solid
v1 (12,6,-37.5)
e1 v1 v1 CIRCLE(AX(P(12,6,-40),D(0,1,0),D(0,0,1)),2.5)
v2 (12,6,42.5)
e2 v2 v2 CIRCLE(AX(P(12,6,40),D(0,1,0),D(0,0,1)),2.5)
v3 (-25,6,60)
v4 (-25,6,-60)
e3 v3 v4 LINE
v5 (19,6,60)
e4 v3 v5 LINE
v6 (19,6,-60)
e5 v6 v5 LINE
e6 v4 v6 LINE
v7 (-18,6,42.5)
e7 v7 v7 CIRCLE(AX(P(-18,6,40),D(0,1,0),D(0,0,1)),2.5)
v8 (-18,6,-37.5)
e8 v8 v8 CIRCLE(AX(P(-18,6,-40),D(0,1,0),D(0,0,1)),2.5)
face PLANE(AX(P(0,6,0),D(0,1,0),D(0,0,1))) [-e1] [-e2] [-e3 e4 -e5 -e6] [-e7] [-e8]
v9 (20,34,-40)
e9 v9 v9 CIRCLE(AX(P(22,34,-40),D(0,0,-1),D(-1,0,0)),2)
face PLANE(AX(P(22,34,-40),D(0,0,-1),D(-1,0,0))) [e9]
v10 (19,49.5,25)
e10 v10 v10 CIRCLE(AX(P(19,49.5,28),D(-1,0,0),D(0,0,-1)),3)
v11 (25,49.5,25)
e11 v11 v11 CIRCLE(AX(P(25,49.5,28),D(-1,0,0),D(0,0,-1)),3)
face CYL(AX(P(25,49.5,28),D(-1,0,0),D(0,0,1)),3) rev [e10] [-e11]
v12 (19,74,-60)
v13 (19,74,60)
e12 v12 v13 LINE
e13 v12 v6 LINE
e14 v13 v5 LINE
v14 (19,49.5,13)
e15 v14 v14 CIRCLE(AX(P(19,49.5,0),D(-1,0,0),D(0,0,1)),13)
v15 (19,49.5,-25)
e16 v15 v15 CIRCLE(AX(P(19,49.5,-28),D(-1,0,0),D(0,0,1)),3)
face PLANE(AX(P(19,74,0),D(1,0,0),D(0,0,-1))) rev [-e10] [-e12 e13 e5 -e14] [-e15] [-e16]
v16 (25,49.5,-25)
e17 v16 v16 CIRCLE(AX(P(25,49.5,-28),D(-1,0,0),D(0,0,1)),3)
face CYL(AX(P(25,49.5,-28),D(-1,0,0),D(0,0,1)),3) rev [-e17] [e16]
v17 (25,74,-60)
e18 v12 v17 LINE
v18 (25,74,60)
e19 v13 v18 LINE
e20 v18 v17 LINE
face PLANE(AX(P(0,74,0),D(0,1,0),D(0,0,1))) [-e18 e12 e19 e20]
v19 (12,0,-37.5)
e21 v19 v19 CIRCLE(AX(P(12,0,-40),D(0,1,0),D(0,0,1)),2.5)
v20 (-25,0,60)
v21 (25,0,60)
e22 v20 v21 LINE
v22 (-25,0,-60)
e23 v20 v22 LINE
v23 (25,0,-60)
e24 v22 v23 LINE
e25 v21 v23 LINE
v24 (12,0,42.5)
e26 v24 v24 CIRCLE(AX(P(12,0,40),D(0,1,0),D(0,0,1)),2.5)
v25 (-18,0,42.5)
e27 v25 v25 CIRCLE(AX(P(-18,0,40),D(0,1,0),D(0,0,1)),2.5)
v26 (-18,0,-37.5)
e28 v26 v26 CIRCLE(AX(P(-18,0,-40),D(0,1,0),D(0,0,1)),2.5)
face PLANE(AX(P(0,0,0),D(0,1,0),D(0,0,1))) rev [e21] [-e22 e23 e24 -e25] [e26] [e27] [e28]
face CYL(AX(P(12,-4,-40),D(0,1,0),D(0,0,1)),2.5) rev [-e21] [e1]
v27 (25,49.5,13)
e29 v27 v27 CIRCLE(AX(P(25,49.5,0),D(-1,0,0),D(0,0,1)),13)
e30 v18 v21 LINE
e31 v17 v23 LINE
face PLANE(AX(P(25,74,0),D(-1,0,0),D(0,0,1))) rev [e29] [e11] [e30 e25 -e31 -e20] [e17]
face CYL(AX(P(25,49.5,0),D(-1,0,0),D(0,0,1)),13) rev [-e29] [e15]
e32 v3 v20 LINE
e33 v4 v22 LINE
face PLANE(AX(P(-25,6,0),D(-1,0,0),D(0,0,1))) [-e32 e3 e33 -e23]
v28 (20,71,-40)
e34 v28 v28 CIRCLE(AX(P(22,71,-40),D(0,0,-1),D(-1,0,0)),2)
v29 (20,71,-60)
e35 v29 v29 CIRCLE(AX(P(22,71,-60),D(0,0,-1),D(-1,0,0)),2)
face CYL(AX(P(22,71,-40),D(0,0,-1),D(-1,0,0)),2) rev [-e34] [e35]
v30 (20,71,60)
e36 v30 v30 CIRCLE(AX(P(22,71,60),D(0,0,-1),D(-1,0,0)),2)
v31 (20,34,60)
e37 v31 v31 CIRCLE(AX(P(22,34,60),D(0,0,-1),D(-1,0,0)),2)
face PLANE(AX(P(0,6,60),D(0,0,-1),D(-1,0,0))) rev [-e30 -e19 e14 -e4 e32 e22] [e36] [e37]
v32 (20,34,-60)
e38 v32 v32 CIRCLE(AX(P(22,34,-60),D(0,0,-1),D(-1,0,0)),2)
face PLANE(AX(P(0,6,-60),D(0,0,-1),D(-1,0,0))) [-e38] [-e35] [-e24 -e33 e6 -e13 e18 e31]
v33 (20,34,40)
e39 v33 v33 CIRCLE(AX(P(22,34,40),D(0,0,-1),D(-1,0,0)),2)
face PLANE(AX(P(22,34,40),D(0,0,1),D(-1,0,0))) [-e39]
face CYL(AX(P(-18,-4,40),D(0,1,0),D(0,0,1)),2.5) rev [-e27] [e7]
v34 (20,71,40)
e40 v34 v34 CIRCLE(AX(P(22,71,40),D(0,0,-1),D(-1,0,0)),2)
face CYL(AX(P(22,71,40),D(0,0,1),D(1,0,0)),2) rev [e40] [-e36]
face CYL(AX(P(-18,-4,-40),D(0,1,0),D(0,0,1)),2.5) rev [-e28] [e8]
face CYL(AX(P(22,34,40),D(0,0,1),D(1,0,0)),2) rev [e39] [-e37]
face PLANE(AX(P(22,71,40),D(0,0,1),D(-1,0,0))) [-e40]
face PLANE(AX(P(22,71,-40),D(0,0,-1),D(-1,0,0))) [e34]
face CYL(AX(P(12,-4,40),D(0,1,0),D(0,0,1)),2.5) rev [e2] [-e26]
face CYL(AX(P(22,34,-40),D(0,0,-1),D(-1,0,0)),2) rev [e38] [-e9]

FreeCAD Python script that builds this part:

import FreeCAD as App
import Part
import Sketcher
from FreeCAD import Vector

doc = App.newDocument("Part")
params = doc.addObject("Spreadsheet::Sheet", "Params")
for row, (alias, value) in enumerate([
    ("sketch1_width", "44 mm"),
    ("sketch1_height", "120 mm"),
    ("pad1_length", "6 mm"),
    ("sketch2_width", "6 mm"),
    ("sketch2_height", "120 mm"),
    ("pad2_length", "74 mm"),
    ("sketch3_diameter", "26 mm"),
    ("sketch3_diameter2", "6 mm"),
    ("sketch4_diameter", "5 mm"),
    ("pocket2_length", "10 mm"),
    ("sketch5_diameter", "4 mm"),
    ("pocket3_length", "20 mm"),
], start=1):
    params.set(f"A{row}", alias)
    params.set(f"B{row}", "=" + value)
    params.setAlias(f"B{row}", alias)

body = doc.addObject("PartDesign::Body", "Body")

sketch1 = doc.addObject("Sketcher::SketchObject", "Sketch")
body.addObject(sketch1)
sketch1.AttachmentSupport = (doc.XZ_Plane, [""])
sketch1.MapMode = "FlatFace"
sketch1.addGeometry([
    Part.LineSegment(Vector(-25, -60, 0), Vector(-25, 60, 0)),
    Part.LineSegment(Vector(-25, 60, 0), Vector(19, 60, 0)),
    Part.LineSegment(Vector(19, 60, 0), Vector(19, -60, 0)),
    Part.LineSegment(Vector(19, -60, 0), Vector(-25, -60, 0)),
], False)
sketch1.addConstraint([
    Sketcher.Constraint("Coincident", 0, 2, 1, 1),
    Sketcher.Constraint("Coincident", 1, 2, 2, 1),
    Sketcher.Constraint("Coincident", 2, 2, 3, 1),
    Sketcher.Constraint("Coincident", 3, 2, 0, 1),
    Sketcher.Constraint("Vertical", 0),
    Sketcher.Constraint("Horizontal", 1),
    Sketcher.Constraint("Vertical", 2),
    Sketcher.Constraint("Horizontal", 3),
    Sketcher.Constraint("DistanceX", 1, 1, 1, 2, 44.0),
    Sketcher.Constraint("DistanceY", 0, 1, 0, 2, 120.0),
    Sketcher.Constraint("DistanceX", 0, 2, -1, 1, 25.0),
    Sketcher.Constraint("DistanceY", -1, 1, 0, 2, 60.0),
])
sketch1.setExpression("Constraints[8]", "Params.sketch1_width")
sketch1.setExpression("Constraints[9]", "Params.sketch1_height")
pad1 = doc.addObject("PartDesign::Pad", "Pad")
body.addObject(pad1)
pad1.Profile = sketch1
pad1.setExpression("Length", "Params.pad1_length")
pad1.Reversed = True

sketch2 = doc.addObject("Sketcher::SketchObject", "Sketch001")
body.addObject(sketch2)
sketch2.AttachmentSupport = (doc.XZ_Plane, [""])
sketch2.MapMode = "FlatFace"
sketch2.addGeometry([
    Part.LineSegment(Vector(19, -60, 0), Vector(19, 60, 0)),
    Part.LineSegment(Vector(19, 60, 0), Vector(25, 60, 0)),
    Part.LineSegment(Vector(25, 60, 0), Vector(25, -60, 0)),
    Part.LineSegment(Vector(25, -60, 0), Vector(19, -60, 0)),
], False)
sketch2.addConstraint([
    Sketcher.Constraint("Coincident", 0, 2, 1, 1),
    Sketcher.Constraint("Coincident", 1, 2, 2, 1),
    Sketcher.Constraint("Coincident", 2, 2, 3, 1),
    Sketcher.Constraint("Coincident", 3, 2, 0, 1),
    Sketcher.Constraint("Vertical", 0),
    Sketcher.Constraint("Horizontal", 1),
    Sketcher.Constraint("Vertical", 2),
    Sketcher.Constraint("Horizontal", 3),
    Sketcher.Constraint("DistanceX", 1, 1, 1, 2, 6.0),
    Sketcher.Constraint("DistanceY", 0, 1, 0, 2, 120.0),
    Sketcher.Constraint("DistanceX", -1, 1, 0, 2, 19.0),
    Sketcher.Constraint("DistanceY", -1, 1, 0, 2, 60.0),
])
sketch2.setExpression("Constraints[8]", "Params.sketch2_width")
sketch2.setExpression("Constraints[9]", "Params.sketch2_height")
pad2 = doc.addObject("PartDesign::Pad", "Pad001")
body.addObject(pad2)
pad2.Profile = sketch2
pad2.setExpression("Length", "Params.pad2_length")
pad2.Reversed = True

sketch3 = doc.addObject("Sketcher::SketchObject", "Sketch002")
body.addObject(sketch3)
sketch3.AttachmentSupport = (doc.YZ_Plane, [""])
sketch3.MapMode = "FlatFace"
sketch3.AttachmentOffset = App.Placement(Vector(0, 0, 19), App.Rotation())
sketch3.addGeometry([
    Part.Circle(Vector(49.5, 0, 0), Vector(0, 0, 1), 13),
    Part.Circle(Vector(49.5, -28, 0), Vector(0, 0, 1), 3),
    Part.Circle(Vector(49.5, 28, 0), Vector(0, 0, 1), 3),
], False)
sketch3.addConstraint([
    Sketcher.Constraint("Equal", 1, 2),
    Sketcher.Constraint("Symmetric", 1, 3, 2, 3, -1),
    Sketcher.Constraint("PointOnObject", 0, 3, -1),
    Sketcher.Constraint("Vertical", 0, 3, 1, 3),
    Sketcher.Constraint("Diameter", 0, 26.0),
    Sketcher.Constraint("Diameter", 1, 6.0),
    Sketcher.Constraint("DistanceY", 1, 3, -1, 1, 28.0),
    Sketcher.Constraint("DistanceX", -1, 1, 0, 3, 49.5),
])
sketch3.setExpression("Constraints[4]", "Params.sketch3_diameter")
sketch3.setExpression("Constraints[5]", "Params.sketch3_diameter2")
pocket1 = doc.addObject("PartDesign::Pocket", "Pocket")
body.addObject(pocket1)
pocket1.Profile = sketch3
pocket1.Type = "ThroughAll"
pocket1.Reversed = True

sketch4 = doc.addObject("Sketcher::SketchObject", "Sketch003")
body.addObject(sketch4)
sketch4.AttachmentSupport = (doc.XZ_Plane, [""])
sketch4.MapMode = "FlatFace"
sketch4.AttachmentOffset = App.Placement(Vector(0, 0, -6), App.Rotation())
sketch4.addGeometry([
    Part.Circle(Vector(-18, -40, 0), Vector(0, 0, 1), 2.5),
    Part.Circle(Vector(12, -40, 0), Vector(0, 0, 1), 2.5),
    Part.Circle(Vector(-18, 40, 0), Vector(0, 0, 1), 2.5),
    Part.Circle(Vector(12, 40, 0), Vector(0, 0, 1), 2.5),
], False)
sketch4.addConstraint([
    Sketcher.Constraint("Equal", 0, 1),
    Sketcher.Constraint("Equal", 1, 2),
    Sketcher.Constraint("Equal", 2, 3),
    Sketcher.Constraint("Symmetric", 0, 3, 2, 3, -1),
    Sketcher.Constraint("Symmetric", 1, 3, 3, 3, -1),
    Sketcher.Constraint("Horizontal", 0, 3, 1, 3),
    Sketcher.Constraint("Diameter", 0, 5.0),
    Sketcher.Constraint("DistanceX", 0, 3, -1, 1, 18.0),
    Sketcher.Constraint("DistanceY", 0, 3, -1, 1, 40.0),
    Sketcher.Constraint("DistanceX", -1, 1, 1, 3, 12.0),
])
sketch4.setExpression("Constraints[6]", "Params.sketch4_diameter")
pocket2 = doc.addObject("PartDesign::Pocket", "Pocket001")
body.addObject(pocket2)
pocket2.Profile = sketch4
pocket2.setExpression("Length", "Params.pocket2_length")
pocket2.Reversed = True

sketch5 = doc.addObject("Sketcher::SketchObject", "Sketch004")
body.addObject(sketch5)
sketch5.AttachmentSupport = (doc.XY_Plane, [""])
sketch5.MapMode = "FlatFace"
sketch5.AttachmentOffset = App.Placement(Vector(0, 0, -60), App.Rotation())
sketch5.addGeometry([
    Part.Circle(Vector(22, 34, 0), Vector(0, 0, 1), 2),
    Part.Circle(Vector(22, 71, 0), Vector(0, 0, 1), 2),
], False)
sketch5.addConstraint([
    Sketcher.Constraint("Equal", 0, 1),
    Sketcher.Constraint("Vertical", 0, 3, 1, 3),
    Sketcher.Constraint("Diameter", 0, 4.0),
    Sketcher.Constraint("DistanceX", -1, 1, 0, 3, 22.0),
    Sketcher.Constraint("DistanceY", -1, 1, 0, 3, 34.0),
    Sketcher.Constraint("DistanceY", -1, 1, 1, 3, 71.0),
])
sketch5.setExpression("Constraints[2]", "Params.sketch5_diameter")
pocket3 = doc.addObject("PartDesign::Pocket", "Pocket002")
body.addObject(pocket3)
pocket3.Profile = sketch5
pocket3.setExpression("Length", "Params.pocket3_length")
pocket3.Reversed = True
doc.recompute()

mirrored = doc.addObject("PartDesign::Mirrored", "Mirrored")
body.addObject(mirrored)
mirrored.Originals = [pocket3]
mirrored.MirrorPlane = (doc.XY_Plane, [""])
body.Tip = mirrored

doc.recompute()
